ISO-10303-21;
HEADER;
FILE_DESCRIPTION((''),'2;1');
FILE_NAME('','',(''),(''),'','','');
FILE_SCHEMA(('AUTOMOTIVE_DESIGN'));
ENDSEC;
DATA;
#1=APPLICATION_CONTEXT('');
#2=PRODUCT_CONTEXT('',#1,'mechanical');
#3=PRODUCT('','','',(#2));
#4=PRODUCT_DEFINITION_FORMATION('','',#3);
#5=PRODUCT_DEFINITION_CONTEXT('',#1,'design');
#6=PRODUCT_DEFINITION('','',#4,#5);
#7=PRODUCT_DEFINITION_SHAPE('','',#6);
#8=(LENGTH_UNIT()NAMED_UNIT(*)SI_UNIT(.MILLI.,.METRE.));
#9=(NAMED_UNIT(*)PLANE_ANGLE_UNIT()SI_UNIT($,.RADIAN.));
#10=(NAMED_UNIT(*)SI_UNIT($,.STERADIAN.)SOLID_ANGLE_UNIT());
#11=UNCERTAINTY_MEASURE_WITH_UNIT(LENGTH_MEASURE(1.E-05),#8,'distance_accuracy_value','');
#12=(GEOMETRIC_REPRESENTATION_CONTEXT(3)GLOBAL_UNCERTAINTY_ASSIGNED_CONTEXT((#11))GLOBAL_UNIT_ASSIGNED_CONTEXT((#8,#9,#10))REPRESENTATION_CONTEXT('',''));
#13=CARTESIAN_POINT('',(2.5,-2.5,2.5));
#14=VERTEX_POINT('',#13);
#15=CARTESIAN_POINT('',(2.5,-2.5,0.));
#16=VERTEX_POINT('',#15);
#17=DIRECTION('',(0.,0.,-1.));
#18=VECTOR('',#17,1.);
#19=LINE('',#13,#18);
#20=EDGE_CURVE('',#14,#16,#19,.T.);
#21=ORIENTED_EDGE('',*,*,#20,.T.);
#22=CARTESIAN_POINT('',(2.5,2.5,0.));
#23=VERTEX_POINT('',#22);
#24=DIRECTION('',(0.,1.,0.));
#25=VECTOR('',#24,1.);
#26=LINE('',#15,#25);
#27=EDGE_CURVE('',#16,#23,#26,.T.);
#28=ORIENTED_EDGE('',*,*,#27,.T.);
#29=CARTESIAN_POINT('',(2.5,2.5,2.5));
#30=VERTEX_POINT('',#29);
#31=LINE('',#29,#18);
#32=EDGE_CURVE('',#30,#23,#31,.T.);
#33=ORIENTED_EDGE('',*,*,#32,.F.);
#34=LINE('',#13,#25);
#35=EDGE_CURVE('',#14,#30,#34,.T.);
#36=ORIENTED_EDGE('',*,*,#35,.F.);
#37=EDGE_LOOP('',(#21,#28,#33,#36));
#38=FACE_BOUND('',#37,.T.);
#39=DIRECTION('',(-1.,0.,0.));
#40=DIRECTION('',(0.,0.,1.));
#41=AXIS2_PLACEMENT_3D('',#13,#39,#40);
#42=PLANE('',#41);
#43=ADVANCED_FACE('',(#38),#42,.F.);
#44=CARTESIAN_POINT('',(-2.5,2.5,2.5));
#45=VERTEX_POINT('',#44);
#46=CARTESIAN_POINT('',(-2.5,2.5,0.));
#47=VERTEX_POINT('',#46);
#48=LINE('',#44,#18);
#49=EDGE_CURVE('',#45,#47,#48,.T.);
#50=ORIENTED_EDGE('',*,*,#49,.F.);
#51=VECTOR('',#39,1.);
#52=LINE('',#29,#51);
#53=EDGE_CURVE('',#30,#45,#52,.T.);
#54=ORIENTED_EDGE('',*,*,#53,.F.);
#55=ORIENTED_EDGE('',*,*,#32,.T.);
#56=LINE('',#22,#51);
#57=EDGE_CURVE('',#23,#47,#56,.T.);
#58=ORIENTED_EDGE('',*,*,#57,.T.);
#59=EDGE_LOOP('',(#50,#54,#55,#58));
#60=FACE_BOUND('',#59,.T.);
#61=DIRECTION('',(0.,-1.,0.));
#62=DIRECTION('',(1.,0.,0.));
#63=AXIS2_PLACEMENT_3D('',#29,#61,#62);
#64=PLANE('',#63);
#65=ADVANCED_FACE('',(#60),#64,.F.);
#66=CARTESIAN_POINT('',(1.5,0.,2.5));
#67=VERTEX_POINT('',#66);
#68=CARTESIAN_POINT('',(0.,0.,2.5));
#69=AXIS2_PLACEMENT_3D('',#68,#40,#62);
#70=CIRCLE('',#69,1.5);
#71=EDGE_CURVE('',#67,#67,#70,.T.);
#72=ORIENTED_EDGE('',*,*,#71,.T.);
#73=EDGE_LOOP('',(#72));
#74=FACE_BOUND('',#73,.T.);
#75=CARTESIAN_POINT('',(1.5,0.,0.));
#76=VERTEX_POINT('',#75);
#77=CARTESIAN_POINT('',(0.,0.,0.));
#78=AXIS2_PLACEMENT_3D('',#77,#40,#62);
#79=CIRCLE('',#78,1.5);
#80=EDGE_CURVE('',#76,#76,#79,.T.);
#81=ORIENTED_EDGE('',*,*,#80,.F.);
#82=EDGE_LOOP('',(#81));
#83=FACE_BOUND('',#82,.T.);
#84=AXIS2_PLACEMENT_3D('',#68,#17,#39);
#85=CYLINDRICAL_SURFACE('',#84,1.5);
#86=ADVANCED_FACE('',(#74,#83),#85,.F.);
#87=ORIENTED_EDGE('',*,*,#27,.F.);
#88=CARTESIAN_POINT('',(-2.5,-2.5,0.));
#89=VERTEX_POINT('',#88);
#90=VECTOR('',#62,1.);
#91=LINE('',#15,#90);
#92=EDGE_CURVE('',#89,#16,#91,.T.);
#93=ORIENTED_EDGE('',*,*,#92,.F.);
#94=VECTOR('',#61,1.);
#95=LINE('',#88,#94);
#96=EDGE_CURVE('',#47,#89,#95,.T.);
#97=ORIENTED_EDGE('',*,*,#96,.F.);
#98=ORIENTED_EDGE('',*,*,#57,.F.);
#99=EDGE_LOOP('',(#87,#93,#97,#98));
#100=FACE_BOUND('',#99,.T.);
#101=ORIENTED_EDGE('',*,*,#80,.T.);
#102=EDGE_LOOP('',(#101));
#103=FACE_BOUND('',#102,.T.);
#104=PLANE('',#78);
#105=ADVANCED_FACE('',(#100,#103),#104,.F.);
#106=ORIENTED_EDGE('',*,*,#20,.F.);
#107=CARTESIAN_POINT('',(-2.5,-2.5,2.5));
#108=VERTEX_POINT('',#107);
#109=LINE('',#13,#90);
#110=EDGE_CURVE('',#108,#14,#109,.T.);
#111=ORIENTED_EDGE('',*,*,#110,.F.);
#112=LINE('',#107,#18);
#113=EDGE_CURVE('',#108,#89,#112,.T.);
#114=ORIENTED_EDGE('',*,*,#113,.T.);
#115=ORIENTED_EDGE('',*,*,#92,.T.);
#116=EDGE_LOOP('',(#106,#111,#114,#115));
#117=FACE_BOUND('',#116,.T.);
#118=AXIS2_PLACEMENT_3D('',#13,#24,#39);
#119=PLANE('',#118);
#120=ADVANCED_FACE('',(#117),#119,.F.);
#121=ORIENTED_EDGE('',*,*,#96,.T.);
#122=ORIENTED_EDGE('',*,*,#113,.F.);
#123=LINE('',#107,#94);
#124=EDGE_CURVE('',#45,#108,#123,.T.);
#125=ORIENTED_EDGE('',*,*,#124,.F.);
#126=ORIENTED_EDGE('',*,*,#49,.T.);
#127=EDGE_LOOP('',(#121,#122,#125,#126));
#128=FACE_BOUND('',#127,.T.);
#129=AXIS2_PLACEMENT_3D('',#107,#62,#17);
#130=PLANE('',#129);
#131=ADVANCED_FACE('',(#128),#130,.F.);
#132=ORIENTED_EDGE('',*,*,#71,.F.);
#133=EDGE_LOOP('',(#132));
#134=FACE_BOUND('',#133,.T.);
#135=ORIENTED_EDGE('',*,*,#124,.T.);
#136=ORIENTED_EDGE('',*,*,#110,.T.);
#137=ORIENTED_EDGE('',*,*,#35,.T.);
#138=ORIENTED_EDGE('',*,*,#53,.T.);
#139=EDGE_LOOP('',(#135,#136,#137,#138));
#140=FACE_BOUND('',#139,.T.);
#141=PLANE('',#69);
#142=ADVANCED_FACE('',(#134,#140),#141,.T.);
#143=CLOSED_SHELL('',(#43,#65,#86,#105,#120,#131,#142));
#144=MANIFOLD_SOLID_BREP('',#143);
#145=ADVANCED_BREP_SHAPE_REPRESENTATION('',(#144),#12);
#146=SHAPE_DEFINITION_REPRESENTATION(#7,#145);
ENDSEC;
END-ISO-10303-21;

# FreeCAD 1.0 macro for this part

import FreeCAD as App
import Part
import Sketcher

doc = App.newDocument("Part")
body = doc.addObject("PartDesign::Body", "Body")

# Sketch on XY plane
sketch1 = body.newObject("Sketcher::SketchObject", "Sketch")
sketch1.AttachmentSupport = (doc.getObject("XY_Plane"), [""])
sketch1.MapMode = "FlatFace"
sketch1.addGeometry([
    Part.LineSegment(App.Vector(-2.5, 2.5, 0), App.Vector(-2.5, -2.5, 0)),  # 0
    Part.LineSegment(App.Vector(-2.5, -2.5, 0), App.Vector(2.5, -2.5, 0)),  # 1
    Part.LineSegment(App.Vector(2.5, -2.5, 0), App.Vector(2.5, 2.5, 0)),  # 2
    Part.LineSegment(App.Vector(2.5, 2.5, 0), App.Vector(-2.5, 2.5, 0)),  # 3
    Part.Circle(App.Vector(0, 0, 0), App.Vector(0, 0, 1), 1.5),  # 4
], False)
sketch1.addConstraint([
    Sketcher.Constraint("Coincident", 0, 2, 1, 1),
    Sketcher.Constraint("Coincident", 1, 2, 2, 1),
    Sketcher.Constraint("Coincident", 2, 2, 3, 1),
    Sketcher.Constraint("Coincident", 3, 2, 0, 1),
    Sketcher.Constraint("Vertical", 0),
    Sketcher.Constraint("Horizontal", 1),
    Sketcher.Constraint("Vertical", 2),
    Sketcher.Constraint("Horizontal", 3),
    Sketcher.Constraint("Coincident", 4, 3, -1, 1),
    Sketcher.Constraint("Symmetric", 0, 2, 2, 2, -1, 1),
    Sketcher.Constraint("Equal", 3, 0),
    Sketcher.Constraint("Diameter", 4, 3.0),
    Sketcher.Constraint("DistanceX", 1, 1, 1, 2, 5.0),
])
pad1 = body.newObject("PartDesign::Pad", "Pad")
pad1.Profile = sketch1
pad1.Length = 2.5

doc.recompute()
